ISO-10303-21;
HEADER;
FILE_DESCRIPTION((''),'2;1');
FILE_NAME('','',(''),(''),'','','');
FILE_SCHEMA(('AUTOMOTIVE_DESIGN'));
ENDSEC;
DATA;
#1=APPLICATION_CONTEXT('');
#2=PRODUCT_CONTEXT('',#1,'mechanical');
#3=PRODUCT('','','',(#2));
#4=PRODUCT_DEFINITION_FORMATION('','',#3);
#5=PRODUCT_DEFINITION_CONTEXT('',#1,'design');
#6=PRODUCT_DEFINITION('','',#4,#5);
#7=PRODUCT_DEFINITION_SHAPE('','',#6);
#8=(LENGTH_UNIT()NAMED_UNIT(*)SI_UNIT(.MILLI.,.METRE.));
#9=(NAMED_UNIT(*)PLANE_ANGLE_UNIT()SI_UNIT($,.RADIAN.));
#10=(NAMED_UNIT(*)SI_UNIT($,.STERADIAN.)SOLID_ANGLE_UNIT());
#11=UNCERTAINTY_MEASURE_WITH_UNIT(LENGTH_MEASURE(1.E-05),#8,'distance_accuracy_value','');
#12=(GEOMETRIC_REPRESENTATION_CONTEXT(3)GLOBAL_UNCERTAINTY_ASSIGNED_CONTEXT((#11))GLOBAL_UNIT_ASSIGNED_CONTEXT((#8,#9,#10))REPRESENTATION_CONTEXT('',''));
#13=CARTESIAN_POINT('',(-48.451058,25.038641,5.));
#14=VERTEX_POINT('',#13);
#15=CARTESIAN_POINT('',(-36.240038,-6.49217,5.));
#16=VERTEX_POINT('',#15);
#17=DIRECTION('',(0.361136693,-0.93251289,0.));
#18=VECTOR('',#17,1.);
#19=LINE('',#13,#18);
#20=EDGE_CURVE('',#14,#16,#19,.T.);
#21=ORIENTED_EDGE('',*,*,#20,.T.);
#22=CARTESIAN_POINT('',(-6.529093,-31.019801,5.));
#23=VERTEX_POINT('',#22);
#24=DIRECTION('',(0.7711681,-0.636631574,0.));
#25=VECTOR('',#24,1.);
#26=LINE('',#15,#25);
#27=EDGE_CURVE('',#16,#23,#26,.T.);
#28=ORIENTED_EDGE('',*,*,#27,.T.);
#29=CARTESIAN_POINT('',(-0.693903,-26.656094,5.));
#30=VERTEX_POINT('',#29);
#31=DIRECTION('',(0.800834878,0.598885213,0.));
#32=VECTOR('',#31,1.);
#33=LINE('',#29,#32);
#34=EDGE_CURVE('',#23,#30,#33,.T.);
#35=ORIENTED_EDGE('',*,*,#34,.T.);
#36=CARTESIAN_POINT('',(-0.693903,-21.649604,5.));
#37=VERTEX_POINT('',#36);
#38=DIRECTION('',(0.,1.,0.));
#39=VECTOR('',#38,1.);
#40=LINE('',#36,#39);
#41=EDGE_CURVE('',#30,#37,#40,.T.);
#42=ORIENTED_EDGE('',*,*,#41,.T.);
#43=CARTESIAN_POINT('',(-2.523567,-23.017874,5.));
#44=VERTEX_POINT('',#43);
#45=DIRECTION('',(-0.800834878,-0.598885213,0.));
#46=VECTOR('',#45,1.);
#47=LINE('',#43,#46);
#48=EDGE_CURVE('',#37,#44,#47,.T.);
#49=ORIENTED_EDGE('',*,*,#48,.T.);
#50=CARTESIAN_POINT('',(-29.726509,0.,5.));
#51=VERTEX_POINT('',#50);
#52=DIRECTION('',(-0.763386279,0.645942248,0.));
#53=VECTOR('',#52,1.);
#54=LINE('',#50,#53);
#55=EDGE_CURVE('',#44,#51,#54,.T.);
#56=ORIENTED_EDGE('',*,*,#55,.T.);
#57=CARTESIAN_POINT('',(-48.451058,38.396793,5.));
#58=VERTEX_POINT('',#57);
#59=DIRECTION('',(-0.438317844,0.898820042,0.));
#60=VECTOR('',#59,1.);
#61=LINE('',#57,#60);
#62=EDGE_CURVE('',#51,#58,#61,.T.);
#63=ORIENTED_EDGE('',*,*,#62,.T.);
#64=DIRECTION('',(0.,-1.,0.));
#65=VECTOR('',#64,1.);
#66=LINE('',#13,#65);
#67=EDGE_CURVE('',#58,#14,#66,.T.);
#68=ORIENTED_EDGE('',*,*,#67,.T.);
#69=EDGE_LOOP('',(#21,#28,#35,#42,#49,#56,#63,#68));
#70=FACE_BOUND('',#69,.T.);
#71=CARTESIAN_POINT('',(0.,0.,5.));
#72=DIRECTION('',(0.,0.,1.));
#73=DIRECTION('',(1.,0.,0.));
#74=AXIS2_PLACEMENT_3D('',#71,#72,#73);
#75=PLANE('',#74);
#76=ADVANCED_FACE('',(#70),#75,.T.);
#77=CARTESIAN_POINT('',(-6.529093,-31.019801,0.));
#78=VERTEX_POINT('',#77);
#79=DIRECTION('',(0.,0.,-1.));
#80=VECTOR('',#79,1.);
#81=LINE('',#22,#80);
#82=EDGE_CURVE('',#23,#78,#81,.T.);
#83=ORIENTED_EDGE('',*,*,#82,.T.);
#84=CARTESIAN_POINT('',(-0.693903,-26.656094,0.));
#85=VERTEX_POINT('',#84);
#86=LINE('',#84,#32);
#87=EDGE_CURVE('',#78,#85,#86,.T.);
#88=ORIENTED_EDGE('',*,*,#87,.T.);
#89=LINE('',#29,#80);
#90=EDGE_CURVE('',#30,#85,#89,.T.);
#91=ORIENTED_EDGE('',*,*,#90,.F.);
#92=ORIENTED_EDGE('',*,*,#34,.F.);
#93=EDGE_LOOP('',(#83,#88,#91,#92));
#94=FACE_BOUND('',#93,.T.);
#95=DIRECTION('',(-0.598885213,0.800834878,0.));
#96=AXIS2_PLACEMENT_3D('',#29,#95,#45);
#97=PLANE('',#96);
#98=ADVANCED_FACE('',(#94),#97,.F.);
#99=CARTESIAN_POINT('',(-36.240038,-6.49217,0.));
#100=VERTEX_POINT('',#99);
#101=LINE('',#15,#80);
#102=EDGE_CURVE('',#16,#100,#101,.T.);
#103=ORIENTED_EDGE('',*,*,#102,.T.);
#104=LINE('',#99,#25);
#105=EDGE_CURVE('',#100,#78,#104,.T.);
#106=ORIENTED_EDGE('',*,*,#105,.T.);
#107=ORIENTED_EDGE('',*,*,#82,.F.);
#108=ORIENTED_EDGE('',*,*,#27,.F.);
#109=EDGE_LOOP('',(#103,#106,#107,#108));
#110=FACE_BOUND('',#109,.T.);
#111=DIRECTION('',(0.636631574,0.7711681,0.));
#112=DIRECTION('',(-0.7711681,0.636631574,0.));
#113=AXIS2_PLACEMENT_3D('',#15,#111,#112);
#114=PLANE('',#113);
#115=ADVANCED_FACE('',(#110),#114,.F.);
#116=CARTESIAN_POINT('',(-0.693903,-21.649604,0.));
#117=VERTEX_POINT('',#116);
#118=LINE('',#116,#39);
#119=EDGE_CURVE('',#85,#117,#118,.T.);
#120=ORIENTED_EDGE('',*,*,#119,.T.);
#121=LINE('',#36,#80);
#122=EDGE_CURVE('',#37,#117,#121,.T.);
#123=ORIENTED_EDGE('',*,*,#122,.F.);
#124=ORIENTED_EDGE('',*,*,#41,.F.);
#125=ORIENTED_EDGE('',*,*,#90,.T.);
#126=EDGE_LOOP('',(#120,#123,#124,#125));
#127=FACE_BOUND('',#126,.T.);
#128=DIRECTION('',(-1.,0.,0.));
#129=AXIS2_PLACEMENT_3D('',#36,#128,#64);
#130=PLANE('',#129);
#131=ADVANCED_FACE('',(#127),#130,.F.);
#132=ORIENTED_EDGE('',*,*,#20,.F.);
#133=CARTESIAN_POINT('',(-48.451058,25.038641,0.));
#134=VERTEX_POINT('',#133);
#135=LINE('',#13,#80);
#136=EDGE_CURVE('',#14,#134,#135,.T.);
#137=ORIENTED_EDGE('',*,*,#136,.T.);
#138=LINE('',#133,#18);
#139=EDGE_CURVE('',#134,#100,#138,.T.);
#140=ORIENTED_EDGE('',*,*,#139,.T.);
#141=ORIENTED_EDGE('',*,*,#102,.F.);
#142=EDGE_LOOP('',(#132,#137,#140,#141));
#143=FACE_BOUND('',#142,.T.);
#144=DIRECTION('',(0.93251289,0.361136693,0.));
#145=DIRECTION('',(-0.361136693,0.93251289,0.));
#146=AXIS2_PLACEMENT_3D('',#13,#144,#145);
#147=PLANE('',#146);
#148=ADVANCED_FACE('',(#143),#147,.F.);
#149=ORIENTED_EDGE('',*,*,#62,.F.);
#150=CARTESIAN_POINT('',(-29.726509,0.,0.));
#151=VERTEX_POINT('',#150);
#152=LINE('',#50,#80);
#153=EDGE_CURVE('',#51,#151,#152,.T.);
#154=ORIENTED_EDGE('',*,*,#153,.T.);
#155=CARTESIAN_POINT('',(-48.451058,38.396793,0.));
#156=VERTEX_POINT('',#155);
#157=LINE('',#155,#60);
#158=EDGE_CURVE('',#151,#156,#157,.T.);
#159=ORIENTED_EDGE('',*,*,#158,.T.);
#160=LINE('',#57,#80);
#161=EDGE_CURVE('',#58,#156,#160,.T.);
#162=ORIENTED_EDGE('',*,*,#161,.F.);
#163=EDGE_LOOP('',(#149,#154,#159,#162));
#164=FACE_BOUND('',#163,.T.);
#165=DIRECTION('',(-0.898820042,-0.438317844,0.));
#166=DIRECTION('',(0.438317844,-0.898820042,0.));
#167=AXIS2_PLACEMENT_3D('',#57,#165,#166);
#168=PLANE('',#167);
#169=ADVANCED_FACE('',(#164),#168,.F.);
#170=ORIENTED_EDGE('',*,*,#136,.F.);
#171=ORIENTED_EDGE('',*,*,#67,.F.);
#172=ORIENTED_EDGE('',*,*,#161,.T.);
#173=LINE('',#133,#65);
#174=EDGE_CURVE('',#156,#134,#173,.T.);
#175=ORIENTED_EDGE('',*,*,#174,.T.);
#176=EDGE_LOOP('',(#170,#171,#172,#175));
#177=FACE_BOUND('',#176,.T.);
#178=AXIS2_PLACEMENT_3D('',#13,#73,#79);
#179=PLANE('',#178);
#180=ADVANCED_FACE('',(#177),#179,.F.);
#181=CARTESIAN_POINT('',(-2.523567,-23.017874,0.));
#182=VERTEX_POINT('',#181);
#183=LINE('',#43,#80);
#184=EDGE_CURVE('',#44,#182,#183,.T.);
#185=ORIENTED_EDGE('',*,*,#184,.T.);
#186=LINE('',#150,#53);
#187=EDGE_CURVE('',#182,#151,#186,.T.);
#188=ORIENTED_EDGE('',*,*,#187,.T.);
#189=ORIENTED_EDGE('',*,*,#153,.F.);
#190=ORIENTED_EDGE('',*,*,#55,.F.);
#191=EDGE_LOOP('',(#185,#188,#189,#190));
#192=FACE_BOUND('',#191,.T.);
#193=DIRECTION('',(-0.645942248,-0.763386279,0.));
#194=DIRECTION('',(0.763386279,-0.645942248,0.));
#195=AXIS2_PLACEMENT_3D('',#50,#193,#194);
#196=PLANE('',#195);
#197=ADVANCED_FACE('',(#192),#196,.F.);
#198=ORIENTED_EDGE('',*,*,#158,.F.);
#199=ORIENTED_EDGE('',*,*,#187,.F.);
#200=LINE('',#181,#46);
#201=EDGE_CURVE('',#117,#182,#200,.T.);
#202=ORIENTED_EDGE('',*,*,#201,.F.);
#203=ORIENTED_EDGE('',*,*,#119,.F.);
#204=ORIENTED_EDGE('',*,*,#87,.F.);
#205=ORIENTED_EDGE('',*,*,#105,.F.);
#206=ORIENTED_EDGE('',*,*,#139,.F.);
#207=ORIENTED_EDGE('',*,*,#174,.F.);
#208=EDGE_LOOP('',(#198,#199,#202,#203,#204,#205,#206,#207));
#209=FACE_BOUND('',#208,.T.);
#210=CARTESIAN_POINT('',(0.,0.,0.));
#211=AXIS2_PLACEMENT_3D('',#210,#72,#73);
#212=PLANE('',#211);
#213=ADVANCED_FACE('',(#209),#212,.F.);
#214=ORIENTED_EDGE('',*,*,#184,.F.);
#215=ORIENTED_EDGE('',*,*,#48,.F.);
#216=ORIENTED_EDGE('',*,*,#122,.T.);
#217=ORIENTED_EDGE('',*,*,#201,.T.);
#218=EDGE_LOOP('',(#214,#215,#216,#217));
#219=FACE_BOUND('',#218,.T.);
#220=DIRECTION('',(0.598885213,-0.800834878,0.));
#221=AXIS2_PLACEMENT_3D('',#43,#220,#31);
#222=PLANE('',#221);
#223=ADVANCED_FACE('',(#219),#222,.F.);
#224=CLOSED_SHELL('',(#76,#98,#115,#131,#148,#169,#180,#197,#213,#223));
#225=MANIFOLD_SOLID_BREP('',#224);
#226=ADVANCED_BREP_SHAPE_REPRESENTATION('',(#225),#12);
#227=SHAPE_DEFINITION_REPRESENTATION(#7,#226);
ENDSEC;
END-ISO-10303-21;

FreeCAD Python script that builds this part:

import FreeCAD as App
import Part
import Sketcher


def add_polygon(sketch, points):
    """Adds a closed chain of lines whose ends are joined by coincident constraints."""
    first, n = sketch.GeometryCount, len(points)
    for a, b in zip(points, points[1:] + points[:1]):
        sketch.addGeometry(Part.LineSegment(App.Vector(*a, 0), App.Vector(*b, 0)), False)
    for i in range(n):
        sketch.addConstraint(Sketcher.Constraint("Coincident", first + i, 2, first + (i + 1) % n, 1))

doc = App.newDocument("Part")
params = doc.addObject("Spreadsheet::Sheet", "Params")
for row, (alias, value) in enumerate([
    ("pad1_length", "5 mm"),
], start=1):
    params.set(f"A{row}", alias)
    params.set(f"B{row}", "=" + value)
    params.setAlias(f"B{row}", alias)

body = doc.addObject("PartDesign::Body", "Body")

sketch1 = body.newObject("Sketcher::SketchObject", "Sketch")
sketch1.AttachmentSupport = (doc.getObject("XY_Plane"), [""])
sketch1.MapMode = "FlatFace"
add_polygon(sketch1, [(-0.693903, -21.649604), (-2.523567, -23.017874), (-29.726509, 0), (-48.451058, 38.396793), (-48.451058, 25.038641), (-36.240038, -6.49217), (-6.529093, -31.019801), (-0.693903, -26.656094)])
sketch1.addConstraint([
    Sketcher.Constraint("Vertical", 3),
    Sketcher.Constraint("Vertical", 7),
    Sketcher.Constraint("PointOnObject", 1, 2, -1),
    Sketcher.Constraint("Parallel", 0, 6),
    Sketcher.Constraint("DistanceY", 7, 1, 7, 2, 5.00649),
    Sketcher.Constraint("DistanceY", 5, 2, -1, 1, 31.019801),
    Sketcher.Constraint("Distance", 1, 35.63457),
    Sketcher.Constraint("Distance", 2, 42.719111),
    Sketcher.Constraint("DistanceY", 3, 2, 3, 1, 13.358152),
    Sketcher.Constraint("DistanceX", 1, 2, -1, 1, 29.726509),
    Sketcher.Constraint("DistanceY", -1, 1, 3, 2, 25.038641),
    Sketcher.Constraint("DistanceX", 4, 2, -1, 1, 36.240038),
    Sketcher.Constraint("DistanceY", 4, 2, -1, 1, 6.49217),
    Sketcher.Constraint("DistanceX", 1, 2, 0, 2, 27.202942),
    Sketcher.Constraint("DistanceY", 6, 2, 0, 2, 3.63822),
    Sketcher.Constraint("DistanceX", 5, 2, 6, 2, 5.835189),
])
pad1 = body.newObject("PartDesign::Pad", "Pad")
pad1.Profile = sketch1
pad1.setExpression("Length", "Params.pad1_length")

doc.recompute()
